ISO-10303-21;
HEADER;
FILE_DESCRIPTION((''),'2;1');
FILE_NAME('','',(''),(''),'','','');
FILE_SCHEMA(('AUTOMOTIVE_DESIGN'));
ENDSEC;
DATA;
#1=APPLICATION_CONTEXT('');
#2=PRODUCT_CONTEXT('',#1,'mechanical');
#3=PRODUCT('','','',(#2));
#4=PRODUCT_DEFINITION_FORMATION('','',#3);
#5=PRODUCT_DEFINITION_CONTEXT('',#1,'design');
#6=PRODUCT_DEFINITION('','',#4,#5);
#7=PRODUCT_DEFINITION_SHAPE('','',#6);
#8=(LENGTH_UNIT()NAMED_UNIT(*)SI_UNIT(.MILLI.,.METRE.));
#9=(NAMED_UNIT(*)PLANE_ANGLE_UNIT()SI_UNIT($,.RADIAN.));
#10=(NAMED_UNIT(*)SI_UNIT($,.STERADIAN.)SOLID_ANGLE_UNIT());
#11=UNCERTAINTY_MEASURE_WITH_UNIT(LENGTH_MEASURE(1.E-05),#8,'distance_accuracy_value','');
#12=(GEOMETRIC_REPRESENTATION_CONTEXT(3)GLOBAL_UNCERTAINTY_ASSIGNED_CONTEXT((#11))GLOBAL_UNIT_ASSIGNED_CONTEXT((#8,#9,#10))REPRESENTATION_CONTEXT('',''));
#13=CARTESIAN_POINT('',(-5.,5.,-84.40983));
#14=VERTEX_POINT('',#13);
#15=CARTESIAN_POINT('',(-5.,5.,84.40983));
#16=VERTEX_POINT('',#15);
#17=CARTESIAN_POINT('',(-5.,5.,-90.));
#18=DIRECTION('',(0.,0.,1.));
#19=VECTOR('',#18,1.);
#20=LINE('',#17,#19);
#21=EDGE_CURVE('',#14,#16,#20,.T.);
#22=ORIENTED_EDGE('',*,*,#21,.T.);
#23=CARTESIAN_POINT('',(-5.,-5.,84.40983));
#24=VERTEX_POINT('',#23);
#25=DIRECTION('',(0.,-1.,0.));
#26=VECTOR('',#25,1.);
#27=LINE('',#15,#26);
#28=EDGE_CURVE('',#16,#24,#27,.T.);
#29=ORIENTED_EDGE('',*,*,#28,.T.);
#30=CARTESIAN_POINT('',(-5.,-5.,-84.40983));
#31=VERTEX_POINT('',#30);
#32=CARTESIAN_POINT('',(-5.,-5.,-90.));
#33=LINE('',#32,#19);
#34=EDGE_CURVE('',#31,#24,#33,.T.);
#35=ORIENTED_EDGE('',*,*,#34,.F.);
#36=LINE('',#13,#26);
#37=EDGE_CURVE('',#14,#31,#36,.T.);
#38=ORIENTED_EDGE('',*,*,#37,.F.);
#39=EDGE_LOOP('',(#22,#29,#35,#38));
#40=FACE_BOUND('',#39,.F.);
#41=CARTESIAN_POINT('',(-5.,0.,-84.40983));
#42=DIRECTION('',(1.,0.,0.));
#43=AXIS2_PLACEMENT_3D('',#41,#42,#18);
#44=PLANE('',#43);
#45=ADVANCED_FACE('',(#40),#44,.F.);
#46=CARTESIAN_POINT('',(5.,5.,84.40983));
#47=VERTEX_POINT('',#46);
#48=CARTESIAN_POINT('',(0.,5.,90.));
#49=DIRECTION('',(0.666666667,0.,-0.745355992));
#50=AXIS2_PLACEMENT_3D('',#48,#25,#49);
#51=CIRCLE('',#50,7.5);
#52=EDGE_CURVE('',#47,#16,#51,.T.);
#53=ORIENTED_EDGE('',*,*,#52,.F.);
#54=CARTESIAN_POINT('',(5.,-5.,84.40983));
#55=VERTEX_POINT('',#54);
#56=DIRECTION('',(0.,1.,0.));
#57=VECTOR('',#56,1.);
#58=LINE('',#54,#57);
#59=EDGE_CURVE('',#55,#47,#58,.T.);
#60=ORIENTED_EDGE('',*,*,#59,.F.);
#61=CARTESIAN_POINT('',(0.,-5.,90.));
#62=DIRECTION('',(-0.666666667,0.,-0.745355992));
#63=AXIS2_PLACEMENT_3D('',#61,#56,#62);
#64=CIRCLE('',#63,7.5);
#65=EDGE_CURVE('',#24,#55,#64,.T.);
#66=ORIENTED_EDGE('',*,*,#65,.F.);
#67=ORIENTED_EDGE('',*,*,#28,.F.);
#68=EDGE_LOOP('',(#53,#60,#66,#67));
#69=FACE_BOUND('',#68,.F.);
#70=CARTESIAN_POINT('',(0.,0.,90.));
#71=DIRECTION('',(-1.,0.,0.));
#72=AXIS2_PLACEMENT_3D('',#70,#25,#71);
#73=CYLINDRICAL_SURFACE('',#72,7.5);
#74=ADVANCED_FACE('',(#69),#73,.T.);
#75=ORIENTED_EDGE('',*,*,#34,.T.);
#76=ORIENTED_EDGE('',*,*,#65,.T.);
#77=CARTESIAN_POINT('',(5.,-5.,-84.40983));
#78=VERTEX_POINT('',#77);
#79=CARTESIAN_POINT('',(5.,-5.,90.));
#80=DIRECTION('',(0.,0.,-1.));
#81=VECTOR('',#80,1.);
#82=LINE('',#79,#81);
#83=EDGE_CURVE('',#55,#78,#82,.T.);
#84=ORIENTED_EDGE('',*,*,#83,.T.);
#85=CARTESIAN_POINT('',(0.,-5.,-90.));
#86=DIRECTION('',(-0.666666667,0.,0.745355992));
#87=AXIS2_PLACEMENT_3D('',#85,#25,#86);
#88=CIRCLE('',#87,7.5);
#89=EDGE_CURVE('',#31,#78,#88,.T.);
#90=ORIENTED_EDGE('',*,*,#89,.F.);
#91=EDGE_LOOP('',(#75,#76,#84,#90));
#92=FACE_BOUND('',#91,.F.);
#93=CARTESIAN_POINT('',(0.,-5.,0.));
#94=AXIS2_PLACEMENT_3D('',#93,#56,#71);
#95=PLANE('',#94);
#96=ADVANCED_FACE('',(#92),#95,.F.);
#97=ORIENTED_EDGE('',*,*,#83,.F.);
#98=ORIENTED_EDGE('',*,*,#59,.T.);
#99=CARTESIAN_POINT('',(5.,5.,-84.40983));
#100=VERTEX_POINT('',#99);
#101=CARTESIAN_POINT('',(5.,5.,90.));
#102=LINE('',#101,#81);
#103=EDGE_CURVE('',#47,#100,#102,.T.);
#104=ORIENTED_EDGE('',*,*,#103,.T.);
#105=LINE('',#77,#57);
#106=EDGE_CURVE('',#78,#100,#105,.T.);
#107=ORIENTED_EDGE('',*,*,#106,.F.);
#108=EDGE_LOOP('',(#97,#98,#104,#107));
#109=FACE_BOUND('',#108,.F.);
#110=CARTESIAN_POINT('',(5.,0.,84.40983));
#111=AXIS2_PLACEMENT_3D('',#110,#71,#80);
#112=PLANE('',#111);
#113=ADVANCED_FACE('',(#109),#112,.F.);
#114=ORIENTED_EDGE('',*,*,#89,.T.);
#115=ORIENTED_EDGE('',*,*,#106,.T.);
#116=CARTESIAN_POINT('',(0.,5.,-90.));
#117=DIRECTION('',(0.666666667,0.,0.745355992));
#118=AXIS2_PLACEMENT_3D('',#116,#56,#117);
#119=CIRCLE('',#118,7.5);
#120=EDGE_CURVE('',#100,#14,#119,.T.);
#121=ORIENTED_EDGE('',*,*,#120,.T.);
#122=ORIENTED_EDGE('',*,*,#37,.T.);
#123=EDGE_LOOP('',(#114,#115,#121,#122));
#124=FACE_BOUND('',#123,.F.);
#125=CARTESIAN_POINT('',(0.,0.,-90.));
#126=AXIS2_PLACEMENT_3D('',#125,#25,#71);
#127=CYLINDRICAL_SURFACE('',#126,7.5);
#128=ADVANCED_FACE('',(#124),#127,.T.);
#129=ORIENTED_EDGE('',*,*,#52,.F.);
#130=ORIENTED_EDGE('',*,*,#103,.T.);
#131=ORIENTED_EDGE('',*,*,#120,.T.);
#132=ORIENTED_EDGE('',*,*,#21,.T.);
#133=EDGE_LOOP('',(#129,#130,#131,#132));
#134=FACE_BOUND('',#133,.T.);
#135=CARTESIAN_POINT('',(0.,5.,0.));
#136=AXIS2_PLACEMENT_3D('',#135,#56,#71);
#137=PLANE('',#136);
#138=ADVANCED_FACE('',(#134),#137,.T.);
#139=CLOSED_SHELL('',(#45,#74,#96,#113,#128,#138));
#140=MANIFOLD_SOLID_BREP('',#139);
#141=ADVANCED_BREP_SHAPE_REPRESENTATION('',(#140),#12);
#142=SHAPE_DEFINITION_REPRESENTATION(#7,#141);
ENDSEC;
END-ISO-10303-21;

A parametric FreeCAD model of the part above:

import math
import FreeCAD as App
import Part
import Sketcher

V = App.Vector

doc = App.newDocument("Part")
body = doc.addObject("PartDesign::Body", "Body")

sketch1 = doc.addObject("Sketcher::SketchObject", "Sketch")
body.addObject(sketch1)
sketch1.AttachmentSupport = (doc.XZ_Plane, [""])
sketch1.MapMode = "FlatFace"
sketch1.addGeometry(Part.ArcOfCircle(Part.Circle(V(0, 90, 0), V(0, 0, 1), 7.5), math.radians(-48.189685), math.radians(228.189685)), False)
sketch1.addGeometry(Part.LineSegment(V(5, 84.40983, 0), V(5, -84.40983, 0)), False)
sketch1.addGeometry(Part.ArcOfCircle(Part.Circle(V(0, -90, 0), V(0, 0, 1), 7.5), math.radians(131.810315), math.radians(408.189685)), False)
sketch1.addGeometry(Part.LineSegment(V(-5, -84.40983, 0), V(-5, 84.40983, 0)), False)
sketch1.addConstraint(Sketcher.Constraint("Coincident", 0, 1, 1, 1))
sketch1.addConstraint(Sketcher.Constraint("Coincident", 1, 2, 2, 2))
sketch1.addConstraint(Sketcher.Constraint("Coincident", 2, 1, 3, 1))
sketch1.addConstraint(Sketcher.Constraint("Coincident", 3, 2, 0, 2))
sketch1.addConstraint(Sketcher.Constraint("Vertical", 1))
sketch1.addConstraint(Sketcher.Constraint("Vertical", 3))
sketch1.addConstraint(Sketcher.Constraint("Equal", 0, 2))
sketch1.addConstraint(Sketcher.Constraint("Symmetric", 0, 3, 2, 3, -1, 1))
sketch1.addConstraint(Sketcher.Constraint("Symmetric", 1, 2, 2, 1, -2))
sketch1.addConstraint(Sketcher.Constraint("Radius", 0, 7.5))
sketch1.addConstraint(Sketcher.Constraint("DistanceY", -1, 1, 0, 3, 90.0))
sketch1.addConstraint(Sketcher.Constraint("DistanceX", -1, 1, 0, 1, 5.0))
pad1 = doc.addObject("PartDesign::Pad", "Pad")
body.addObject(pad1)
pad1.Profile = sketch1
pad1.Type = "TwoLengths"
pad1.Length = 5
pad1.Length2 = 5
pad1.Reversed = True

doc.recompute()
